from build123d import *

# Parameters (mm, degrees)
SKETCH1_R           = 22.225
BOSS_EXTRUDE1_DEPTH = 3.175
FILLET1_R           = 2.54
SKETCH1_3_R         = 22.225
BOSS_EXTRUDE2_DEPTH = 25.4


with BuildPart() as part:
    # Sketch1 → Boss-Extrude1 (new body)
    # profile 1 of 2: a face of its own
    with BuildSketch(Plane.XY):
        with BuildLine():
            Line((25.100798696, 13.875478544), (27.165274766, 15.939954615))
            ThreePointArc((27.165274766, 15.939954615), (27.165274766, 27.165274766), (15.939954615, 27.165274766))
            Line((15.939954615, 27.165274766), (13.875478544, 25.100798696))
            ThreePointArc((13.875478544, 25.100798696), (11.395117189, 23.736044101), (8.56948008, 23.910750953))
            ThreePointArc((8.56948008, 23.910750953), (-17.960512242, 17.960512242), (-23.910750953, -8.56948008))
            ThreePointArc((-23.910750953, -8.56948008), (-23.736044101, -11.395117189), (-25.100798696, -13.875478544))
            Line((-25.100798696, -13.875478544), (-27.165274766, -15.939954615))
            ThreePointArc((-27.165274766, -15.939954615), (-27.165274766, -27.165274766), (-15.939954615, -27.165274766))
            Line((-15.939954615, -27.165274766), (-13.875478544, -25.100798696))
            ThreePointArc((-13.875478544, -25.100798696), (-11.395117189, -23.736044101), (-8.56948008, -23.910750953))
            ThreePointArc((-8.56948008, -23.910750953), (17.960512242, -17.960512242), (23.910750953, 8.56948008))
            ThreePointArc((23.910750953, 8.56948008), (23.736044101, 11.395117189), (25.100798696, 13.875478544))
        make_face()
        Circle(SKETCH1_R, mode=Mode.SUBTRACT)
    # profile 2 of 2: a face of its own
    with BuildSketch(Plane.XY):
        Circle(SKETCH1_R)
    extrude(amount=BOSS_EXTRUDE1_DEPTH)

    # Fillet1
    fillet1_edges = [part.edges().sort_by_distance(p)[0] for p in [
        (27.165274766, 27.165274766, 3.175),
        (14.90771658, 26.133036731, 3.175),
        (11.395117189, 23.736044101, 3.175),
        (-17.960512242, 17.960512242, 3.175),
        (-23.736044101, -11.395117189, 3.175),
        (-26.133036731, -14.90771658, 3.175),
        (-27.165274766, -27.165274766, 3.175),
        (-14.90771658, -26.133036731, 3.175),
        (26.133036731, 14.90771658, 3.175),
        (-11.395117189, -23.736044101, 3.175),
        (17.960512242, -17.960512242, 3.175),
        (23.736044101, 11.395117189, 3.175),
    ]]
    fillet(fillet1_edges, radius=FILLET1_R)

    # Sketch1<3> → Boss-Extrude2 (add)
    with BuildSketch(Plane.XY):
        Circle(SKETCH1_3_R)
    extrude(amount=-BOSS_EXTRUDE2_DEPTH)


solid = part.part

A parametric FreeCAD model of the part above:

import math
import FreeCAD as App
import Part
import Sketcher

V = App.Vector
Q = App.Units.Quantity


def edges_at(feature, points):
    """Names of the edges that pass closest to the given points."""
    edges = feature.Shape.Edges
    near = lambda p: min(range(len(edges)), key=lambda i: edges[i].distToShape(Part.Vertex(*p))[0])
    return sorted({f"Edge{near(p) + 1}" for p in points})

doc = App.newDocument("Part")
body = doc.addObject("PartDesign::Body", "Body")

# Sketch on XY plane
sketch1 = doc.addObject("Sketcher::SketchObject", "Sketch")
body.addObject(sketch1)
sketch1.AttachmentSupport = (doc.XY_Plane, [""])
sketch1.MapMode = "FlatFace"
sketch1.addGeometry(Part.LineSegment(V(25.100799, 13.875479, 0), V(27.165275, 15.939955, 0)), False)
sketch1.addGeometry(Part.ArcOfCircle(Part.Circle(V(21.552615, 21.552615, 0), V(0, 0, 1), 7.9375), math.radians(-45), math.radians(135)), False)
sketch1.addGeometry(Part.LineSegment(V(15.939955, 27.165275, 0), V(13.875479, 25.100799, 0)), False)
sketch1.addGeometry(Part.ArcOfCircle(Part.Circle(V(10.283376, 28.692901, 0), V(0, 0, 1), 5.08), math.radians(-109.717397), math.radians(-45)), False)
sketch1.addGeometry(Part.ArcOfCircle(Part.Circle(V(0, 0, 0), V(0, 0, 1), 25.4), math.radians(70.282603), math.radians(199.717397)), False)
sketch1.addGeometry(Part.ArcOfCircle(Part.Circle(V(-28.692901, -10.283376, 0), V(0, 0, 1), 5.08), math.radians(-45), math.radians(19.717397)), False)
sketch1.addGeometry(Part.LineSegment(V(-25.100799, -13.875479, 0), V(-27.165275, -15.939955, 0)), False)
sketch1.addGeometry(Part.ArcOfCircle(Part.Circle(V(-21.552615, -21.552615, 0), V(0, 0, 1), 7.9375), math.radians(135), math.radians(315)), False)
sketch1.addGeometry(Part.LineSegment(V(-15.939955, -27.165275, 0), V(-13.875479, -25.100799, 0)), False)
sketch1.addGeometry(Part.ArcOfCircle(Part.Circle(V(-10.283376, -28.692901, 0), V(0, 0, 1), 5.08), math.radians(70.282603), math.radians(135)), False)
sketch1.addGeometry(Part.ArcOfCircle(Part.Circle(V(0, 0, 0), V(0, 0, 1), 25.4), math.radians(-109.717397), math.radians(19.717397)), False)
sketch1.addGeometry(Part.ArcOfCircle(Part.Circle(V(28.692901, 10.283376, 0), V(0, 0, 1), 5.08), math.radians(135), math.radians(199.717397)), False)
sketch1.addConstraint(Sketcher.Constraint("Tangent", 0, 2, 1, 1))
sketch1.addConstraint(Sketcher.Constraint("Tangent", 1, 2, 2, 1))
sketch1.addConstraint(Sketcher.Constraint("Tangent", 2, 2, 3, 2))
sketch1.addConstraint(Sketcher.Constraint("Tangent", 3, 1, 4, 1))
sketch1.addConstraint(Sketcher.Constraint("Tangent", 4, 2, 5, 2))
sketch1.addConstraint(Sketcher.Constraint("Tangent", 5, 1, 6, 1))
sketch1.addConstraint(Sketcher.Constraint("Tangent", 6, 2, 7, 1))
sketch1.addConstraint(Sketcher.Constraint("Tangent", 7, 2, 8, 1))
sketch1.addConstraint(Sketcher.Constraint("Tangent", 8, 2, 9, 2))
sketch1.addConstraint(Sketcher.Constraint("Tangent", 9, 1, 10, 1))
sketch1.addConstraint(Sketcher.Constraint("Tangent", 10, 2, 11, 2))
sketch1.addConstraint(Sketcher.Constraint("Tangent", 11, 1, 0, 1))
sketch1.addConstraint(Sketcher.Constraint("Coincident", 4, 3, -1, 1))
sketch1.addConstraint(Sketcher.Constraint("Coincident", 10, 3, -1, 1))
sketch1.addConstraint(Sketcher.Constraint("Equal", 3, 5))
sketch1.addConstraint(Sketcher.Constraint("Equal", 1, 7))
sketch1.addConstraint(Sketcher.Constraint("Equal", 5, 9))
sketch1.addConstraint(Sketcher.Constraint("Equal", 4, 10))
sketch1.addConstraint(Sketcher.Constraint("Equal", 9, 11))
sketch1.addConstraint(Sketcher.Constraint("Symmetric", 1, 3, 7, 3, -1, 1))
sketch1.addConstraint(Sketcher.Constraint("Parallel", 0, 2))
sketch1.addConstraint(Sketcher.Constraint("Parallel", 2, 6))
sketch1.addConstraint(Sketcher.Constraint("Parallel", 6, 8))
sketch1.addConstraint(Sketcher.Constraint("Equal", 0, 2))
sketch1.addConstraint(Sketcher.Constraint("Radius", 4, Q("1 in")))
sketch1.addConstraint(Sketcher.Constraint("Radius", 3, Q("0.2 in")))
sketch1.addConstraint(Sketcher.Constraint("Angle", 0, Q("45 deg")))
sketch1.addConstraint(Sketcher.Constraint("Radius", 1, Q("0.3125 in")))
sketch1.addConstraint(Sketcher.Constraint("DistanceY", 11, 3, 0, 2, Q("0.2226999 in")))
pad1 = doc.addObject("PartDesign::Pad", "Pad")
body.addObject(pad1)
pad1.Profile = sketch1
pad1.Length = Q("0.125 in")
doc.recompute()

fillet = doc.addObject("PartDesign::Fillet", "Fillet")
body.addObject(fillet)
fillet.Base = (pad1, edges_at(pad1, [
    (27.165, 27.165, 3.175),
    (14.908, 26.133, 3.175),
    (11.395, 23.736, 3.175),
    (-17.961, 17.961, 3.175),
    (-23.736, -11.395, 3.175),
    (-26.133, -14.908, 3.175),
    (-27.165, -27.165, 3.175),
    (-14.908, -26.133, 3.175),
    (26.133, 14.908, 3.175),
    (-11.395, -23.736, 3.175),
    (17.961, -17.961, 3.175),
    (23.736, 11.395, 3.175),
]))
fillet.Radius = Q("0.1 in")

# Sketch on XY plane
sketch2 = doc.addObject("Sketcher::SketchObject", "Sketch001")
body.addObject(sketch2)
sketch2.AttachmentSupport = (doc.XY_Plane, [""])
sketch2.MapMode = "FlatFace"
sketch2.addGeometry(Part.Circle(V(0, 0, 0), V(0, 0, 1), 22.225), False)
sketch2.addConstraint(Sketcher.Constraint("Coincident", 0, 3, -1, 1))
sketch2.addConstraint(Sketcher.Constraint("Diameter", 0, Q("1.75 in")))
pad2 = doc.addObject("PartDesign::Pad", "Pad001")
body.addObject(pad2)
pad2.Profile = sketch2
pad2.Length = Q("1 in")
pad2.Reversed = True

doc.recompute()
